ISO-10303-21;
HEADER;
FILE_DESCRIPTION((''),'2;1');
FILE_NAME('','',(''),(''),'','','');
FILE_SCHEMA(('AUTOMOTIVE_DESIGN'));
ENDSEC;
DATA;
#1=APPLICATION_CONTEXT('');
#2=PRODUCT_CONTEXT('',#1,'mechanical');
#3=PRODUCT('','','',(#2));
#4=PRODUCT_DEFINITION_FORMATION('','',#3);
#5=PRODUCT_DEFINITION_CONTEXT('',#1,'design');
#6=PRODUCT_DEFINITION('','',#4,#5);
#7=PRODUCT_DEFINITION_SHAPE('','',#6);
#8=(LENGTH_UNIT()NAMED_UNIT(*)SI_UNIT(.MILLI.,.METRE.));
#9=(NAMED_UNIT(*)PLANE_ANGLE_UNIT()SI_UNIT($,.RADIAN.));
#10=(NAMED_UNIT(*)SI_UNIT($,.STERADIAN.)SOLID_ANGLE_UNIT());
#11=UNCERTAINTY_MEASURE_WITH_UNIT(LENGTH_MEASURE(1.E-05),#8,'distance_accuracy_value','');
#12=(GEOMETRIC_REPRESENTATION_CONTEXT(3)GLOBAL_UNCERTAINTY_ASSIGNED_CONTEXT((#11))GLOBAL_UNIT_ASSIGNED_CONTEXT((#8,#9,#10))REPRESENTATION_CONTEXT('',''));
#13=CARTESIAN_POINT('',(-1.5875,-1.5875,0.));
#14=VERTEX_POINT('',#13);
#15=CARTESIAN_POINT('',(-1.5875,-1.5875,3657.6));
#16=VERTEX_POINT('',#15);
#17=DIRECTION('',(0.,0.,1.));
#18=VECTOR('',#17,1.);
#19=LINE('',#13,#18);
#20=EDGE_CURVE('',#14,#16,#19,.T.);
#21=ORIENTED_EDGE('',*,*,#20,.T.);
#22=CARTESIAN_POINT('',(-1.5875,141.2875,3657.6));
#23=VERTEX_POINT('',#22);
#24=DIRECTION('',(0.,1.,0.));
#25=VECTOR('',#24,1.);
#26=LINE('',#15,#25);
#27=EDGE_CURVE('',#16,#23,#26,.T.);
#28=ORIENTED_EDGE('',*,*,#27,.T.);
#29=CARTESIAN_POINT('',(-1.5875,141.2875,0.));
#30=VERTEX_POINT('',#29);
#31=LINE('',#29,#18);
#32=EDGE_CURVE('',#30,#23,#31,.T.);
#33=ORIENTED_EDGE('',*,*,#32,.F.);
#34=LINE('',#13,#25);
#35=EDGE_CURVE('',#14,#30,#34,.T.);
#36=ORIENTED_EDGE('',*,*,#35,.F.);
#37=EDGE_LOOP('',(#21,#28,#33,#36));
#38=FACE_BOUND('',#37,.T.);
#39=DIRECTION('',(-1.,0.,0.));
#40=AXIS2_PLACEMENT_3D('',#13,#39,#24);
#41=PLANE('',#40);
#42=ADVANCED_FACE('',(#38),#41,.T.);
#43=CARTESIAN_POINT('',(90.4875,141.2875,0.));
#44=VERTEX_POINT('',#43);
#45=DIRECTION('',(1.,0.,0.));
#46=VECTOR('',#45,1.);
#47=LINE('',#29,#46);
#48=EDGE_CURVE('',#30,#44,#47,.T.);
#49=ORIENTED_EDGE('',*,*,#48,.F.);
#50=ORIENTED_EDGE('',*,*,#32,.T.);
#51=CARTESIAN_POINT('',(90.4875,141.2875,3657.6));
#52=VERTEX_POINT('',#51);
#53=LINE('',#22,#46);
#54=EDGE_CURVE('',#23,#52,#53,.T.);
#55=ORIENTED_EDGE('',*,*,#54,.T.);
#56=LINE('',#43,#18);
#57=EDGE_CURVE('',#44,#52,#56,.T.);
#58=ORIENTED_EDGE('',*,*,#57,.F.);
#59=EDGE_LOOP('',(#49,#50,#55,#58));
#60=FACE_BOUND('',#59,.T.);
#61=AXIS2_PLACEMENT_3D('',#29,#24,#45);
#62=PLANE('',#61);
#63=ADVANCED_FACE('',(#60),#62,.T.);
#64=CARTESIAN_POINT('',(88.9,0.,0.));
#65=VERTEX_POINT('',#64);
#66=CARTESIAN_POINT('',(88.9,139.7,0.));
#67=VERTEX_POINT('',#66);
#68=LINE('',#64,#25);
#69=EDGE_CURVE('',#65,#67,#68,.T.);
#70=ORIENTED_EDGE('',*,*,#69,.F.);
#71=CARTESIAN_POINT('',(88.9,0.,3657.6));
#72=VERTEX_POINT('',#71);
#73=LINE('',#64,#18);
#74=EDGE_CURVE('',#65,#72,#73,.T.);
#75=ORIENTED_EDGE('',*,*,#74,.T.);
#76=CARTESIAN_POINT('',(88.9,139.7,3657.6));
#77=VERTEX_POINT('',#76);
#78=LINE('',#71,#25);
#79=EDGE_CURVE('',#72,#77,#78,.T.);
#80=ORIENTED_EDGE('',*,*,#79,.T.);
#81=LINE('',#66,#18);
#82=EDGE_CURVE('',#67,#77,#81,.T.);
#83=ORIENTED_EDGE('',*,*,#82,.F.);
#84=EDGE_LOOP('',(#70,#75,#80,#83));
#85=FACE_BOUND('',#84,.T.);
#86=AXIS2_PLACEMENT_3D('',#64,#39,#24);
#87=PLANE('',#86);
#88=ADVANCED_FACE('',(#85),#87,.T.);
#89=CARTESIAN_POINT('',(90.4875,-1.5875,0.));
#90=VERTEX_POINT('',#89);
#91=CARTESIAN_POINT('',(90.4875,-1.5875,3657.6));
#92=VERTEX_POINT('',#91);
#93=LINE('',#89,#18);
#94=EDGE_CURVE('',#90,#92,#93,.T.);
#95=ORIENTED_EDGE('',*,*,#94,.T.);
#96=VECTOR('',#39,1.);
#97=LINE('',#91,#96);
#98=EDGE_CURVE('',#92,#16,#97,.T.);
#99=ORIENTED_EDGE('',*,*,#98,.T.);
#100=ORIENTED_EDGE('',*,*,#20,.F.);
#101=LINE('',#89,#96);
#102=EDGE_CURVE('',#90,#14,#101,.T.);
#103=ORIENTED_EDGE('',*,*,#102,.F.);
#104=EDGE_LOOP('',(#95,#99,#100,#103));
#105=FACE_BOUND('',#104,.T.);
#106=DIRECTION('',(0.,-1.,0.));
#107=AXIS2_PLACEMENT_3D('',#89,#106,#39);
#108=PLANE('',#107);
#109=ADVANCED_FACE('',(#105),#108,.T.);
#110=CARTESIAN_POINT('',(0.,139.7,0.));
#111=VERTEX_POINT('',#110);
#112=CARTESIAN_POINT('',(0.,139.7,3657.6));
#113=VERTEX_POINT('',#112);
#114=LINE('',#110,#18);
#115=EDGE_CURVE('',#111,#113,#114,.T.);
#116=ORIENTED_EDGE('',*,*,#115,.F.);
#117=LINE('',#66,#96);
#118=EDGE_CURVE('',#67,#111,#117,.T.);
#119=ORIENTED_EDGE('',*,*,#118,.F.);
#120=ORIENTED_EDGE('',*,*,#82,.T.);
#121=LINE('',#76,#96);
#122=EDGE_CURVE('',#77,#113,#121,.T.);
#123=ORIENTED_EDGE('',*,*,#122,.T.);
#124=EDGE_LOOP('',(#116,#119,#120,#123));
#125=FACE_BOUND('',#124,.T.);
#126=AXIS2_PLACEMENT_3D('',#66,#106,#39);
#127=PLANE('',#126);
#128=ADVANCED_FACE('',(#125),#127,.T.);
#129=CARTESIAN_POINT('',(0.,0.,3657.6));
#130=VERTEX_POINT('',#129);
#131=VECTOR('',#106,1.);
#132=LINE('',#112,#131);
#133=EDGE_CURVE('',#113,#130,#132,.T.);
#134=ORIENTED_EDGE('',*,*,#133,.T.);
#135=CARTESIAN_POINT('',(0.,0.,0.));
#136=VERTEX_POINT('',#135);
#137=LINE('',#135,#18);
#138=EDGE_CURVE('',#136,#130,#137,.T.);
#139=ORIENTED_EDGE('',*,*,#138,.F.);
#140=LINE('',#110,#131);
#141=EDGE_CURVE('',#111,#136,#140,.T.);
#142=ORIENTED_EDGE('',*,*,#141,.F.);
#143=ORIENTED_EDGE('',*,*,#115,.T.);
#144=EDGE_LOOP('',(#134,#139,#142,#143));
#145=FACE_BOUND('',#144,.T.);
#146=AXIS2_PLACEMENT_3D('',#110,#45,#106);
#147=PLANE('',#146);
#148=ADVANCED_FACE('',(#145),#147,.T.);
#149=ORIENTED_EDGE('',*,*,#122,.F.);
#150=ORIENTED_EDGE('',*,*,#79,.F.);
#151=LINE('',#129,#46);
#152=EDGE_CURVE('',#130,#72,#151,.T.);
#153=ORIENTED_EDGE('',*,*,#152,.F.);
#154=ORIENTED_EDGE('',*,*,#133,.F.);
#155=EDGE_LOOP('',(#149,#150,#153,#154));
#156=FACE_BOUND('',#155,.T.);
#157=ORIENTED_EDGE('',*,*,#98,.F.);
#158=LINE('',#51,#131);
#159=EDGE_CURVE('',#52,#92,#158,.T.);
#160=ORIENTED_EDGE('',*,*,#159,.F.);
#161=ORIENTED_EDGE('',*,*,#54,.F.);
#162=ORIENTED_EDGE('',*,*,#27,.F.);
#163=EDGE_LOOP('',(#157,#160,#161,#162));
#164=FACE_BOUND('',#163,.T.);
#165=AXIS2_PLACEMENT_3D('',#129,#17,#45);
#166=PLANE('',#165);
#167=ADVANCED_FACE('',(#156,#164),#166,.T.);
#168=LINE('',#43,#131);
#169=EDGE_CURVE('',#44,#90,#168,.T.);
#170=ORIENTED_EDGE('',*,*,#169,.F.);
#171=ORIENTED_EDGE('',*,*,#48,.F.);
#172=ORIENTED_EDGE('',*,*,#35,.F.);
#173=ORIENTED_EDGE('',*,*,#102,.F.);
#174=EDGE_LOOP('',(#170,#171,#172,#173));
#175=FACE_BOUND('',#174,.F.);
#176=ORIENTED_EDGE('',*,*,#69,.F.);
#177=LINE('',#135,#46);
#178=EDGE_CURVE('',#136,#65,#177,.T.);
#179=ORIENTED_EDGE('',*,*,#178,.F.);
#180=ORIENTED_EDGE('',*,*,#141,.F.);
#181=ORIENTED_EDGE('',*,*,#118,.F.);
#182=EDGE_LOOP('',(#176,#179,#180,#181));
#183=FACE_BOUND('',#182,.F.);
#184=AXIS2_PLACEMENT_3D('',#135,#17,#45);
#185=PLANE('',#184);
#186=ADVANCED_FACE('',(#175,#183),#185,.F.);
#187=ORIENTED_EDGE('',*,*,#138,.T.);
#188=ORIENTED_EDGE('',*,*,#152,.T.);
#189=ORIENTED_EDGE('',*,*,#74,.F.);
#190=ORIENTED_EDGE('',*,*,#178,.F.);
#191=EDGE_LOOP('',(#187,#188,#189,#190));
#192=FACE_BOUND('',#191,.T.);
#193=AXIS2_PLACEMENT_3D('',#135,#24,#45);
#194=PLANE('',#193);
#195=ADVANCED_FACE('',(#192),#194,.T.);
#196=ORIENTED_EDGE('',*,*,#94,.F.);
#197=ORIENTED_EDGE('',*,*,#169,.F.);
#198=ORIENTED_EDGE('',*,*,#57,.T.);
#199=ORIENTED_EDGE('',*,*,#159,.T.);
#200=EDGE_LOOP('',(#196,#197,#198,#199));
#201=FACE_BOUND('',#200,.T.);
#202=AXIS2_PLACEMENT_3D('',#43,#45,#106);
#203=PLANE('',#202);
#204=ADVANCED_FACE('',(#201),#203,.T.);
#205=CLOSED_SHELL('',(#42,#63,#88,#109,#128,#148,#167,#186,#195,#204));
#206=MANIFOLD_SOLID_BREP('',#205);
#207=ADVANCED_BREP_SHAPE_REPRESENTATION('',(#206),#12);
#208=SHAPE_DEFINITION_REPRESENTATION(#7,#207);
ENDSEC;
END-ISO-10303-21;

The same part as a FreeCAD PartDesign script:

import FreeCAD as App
import Part
import Sketcher
Q = App.Units.Quantity

doc = App.newDocument("Part")
body = doc.addObject("PartDesign::Body", "Body")

# Sketch on XY plane
sketch1 = body.newObject("Sketcher::SketchObject", "Sketch")
sketch1.AttachmentSupport = (doc.getObject("XY_Plane"), [""])
sketch1.MapMode = "FlatFace"
sketch1.addGeometry([
    Part.LineSegment(App.Vector(90, 141, 0), App.Vector(-2, 141, 0)),  # 0
    Part.LineSegment(App.Vector(-2, 141, 0), App.Vector(-2, -2, 0)),  # 1
    Part.LineSegment(App.Vector(-2, -2, 0), App.Vector(90, -2, 0)),  # 2
    Part.LineSegment(App.Vector(90, -2, 0), App.Vector(90, 141, 0)),  # 3
    Part.LineSegment(App.Vector(89, 0, 0), App.Vector(0, 0, 0)),  # 4
    Part.LineSegment(App.Vector(0, 0, 0), App.Vector(0, 140, 0)),  # 5
    Part.LineSegment(App.Vector(0, 140, 0), App.Vector(89, 140, 0)),  # 6
    Part.LineSegment(App.Vector(89, 140, 0), App.Vector(89, 0, 0)),  # 7
], False)
sketch1.addConstraint([
    Sketcher.Constraint("Coincident", 0, 2, 1, 1),
    Sketcher.Constraint("Coincident", 1, 2, 2, 1),
    Sketcher.Constraint("Coincident", 2, 2, 3, 1),
    Sketcher.Constraint("Coincident", 3, 2, 0, 1),
    Sketcher.Constraint("Coincident", 4, 2, 5, 1),
    Sketcher.Constraint("Coincident", 5, 2, 6, 1),
    Sketcher.Constraint("Coincident", 6, 2, 7, 1),
    Sketcher.Constraint("Coincident", 7, 2, 4, 1),
    Sketcher.Constraint("Horizontal", 0),
    Sketcher.Constraint("Vertical", 1),
    Sketcher.Constraint("Horizontal", 2),
    Sketcher.Constraint("Vertical", 3),
    Sketcher.Constraint("Horizontal", 4),
    Sketcher.Constraint("Vertical", 5),
    Sketcher.Constraint("Horizontal", 6),
    Sketcher.Constraint("Vertical", 7),
    Sketcher.Constraint("Coincident", 4, 2, -1, 1),
    Sketcher.Constraint("DistanceX", 4, 2, 4, 1, Q("3.5 in")),
    Sketcher.Constraint("DistanceY", 5, 1, 5, 2, Q("5.5 in")),
    Sketcher.Constraint("DistanceX", 0, 2, -1, 1, Q("0.0625 in")),
    Sketcher.Constraint("DistanceY", 1, 2, -1, 1, Q("0.0625 in")),
    Sketcher.Constraint("DistanceY", 5, 2, 0, 2, Q("0.0625 in")),
    Sketcher.Constraint("DistanceX", 6, 2, 3, 2, Q("0.0625 in")),
])
pad1 = body.newObject("PartDesign::Pad", "Pad")
pad1.Profile = sketch1
pad1.Length = Q("144 in")

doc.recompute()
